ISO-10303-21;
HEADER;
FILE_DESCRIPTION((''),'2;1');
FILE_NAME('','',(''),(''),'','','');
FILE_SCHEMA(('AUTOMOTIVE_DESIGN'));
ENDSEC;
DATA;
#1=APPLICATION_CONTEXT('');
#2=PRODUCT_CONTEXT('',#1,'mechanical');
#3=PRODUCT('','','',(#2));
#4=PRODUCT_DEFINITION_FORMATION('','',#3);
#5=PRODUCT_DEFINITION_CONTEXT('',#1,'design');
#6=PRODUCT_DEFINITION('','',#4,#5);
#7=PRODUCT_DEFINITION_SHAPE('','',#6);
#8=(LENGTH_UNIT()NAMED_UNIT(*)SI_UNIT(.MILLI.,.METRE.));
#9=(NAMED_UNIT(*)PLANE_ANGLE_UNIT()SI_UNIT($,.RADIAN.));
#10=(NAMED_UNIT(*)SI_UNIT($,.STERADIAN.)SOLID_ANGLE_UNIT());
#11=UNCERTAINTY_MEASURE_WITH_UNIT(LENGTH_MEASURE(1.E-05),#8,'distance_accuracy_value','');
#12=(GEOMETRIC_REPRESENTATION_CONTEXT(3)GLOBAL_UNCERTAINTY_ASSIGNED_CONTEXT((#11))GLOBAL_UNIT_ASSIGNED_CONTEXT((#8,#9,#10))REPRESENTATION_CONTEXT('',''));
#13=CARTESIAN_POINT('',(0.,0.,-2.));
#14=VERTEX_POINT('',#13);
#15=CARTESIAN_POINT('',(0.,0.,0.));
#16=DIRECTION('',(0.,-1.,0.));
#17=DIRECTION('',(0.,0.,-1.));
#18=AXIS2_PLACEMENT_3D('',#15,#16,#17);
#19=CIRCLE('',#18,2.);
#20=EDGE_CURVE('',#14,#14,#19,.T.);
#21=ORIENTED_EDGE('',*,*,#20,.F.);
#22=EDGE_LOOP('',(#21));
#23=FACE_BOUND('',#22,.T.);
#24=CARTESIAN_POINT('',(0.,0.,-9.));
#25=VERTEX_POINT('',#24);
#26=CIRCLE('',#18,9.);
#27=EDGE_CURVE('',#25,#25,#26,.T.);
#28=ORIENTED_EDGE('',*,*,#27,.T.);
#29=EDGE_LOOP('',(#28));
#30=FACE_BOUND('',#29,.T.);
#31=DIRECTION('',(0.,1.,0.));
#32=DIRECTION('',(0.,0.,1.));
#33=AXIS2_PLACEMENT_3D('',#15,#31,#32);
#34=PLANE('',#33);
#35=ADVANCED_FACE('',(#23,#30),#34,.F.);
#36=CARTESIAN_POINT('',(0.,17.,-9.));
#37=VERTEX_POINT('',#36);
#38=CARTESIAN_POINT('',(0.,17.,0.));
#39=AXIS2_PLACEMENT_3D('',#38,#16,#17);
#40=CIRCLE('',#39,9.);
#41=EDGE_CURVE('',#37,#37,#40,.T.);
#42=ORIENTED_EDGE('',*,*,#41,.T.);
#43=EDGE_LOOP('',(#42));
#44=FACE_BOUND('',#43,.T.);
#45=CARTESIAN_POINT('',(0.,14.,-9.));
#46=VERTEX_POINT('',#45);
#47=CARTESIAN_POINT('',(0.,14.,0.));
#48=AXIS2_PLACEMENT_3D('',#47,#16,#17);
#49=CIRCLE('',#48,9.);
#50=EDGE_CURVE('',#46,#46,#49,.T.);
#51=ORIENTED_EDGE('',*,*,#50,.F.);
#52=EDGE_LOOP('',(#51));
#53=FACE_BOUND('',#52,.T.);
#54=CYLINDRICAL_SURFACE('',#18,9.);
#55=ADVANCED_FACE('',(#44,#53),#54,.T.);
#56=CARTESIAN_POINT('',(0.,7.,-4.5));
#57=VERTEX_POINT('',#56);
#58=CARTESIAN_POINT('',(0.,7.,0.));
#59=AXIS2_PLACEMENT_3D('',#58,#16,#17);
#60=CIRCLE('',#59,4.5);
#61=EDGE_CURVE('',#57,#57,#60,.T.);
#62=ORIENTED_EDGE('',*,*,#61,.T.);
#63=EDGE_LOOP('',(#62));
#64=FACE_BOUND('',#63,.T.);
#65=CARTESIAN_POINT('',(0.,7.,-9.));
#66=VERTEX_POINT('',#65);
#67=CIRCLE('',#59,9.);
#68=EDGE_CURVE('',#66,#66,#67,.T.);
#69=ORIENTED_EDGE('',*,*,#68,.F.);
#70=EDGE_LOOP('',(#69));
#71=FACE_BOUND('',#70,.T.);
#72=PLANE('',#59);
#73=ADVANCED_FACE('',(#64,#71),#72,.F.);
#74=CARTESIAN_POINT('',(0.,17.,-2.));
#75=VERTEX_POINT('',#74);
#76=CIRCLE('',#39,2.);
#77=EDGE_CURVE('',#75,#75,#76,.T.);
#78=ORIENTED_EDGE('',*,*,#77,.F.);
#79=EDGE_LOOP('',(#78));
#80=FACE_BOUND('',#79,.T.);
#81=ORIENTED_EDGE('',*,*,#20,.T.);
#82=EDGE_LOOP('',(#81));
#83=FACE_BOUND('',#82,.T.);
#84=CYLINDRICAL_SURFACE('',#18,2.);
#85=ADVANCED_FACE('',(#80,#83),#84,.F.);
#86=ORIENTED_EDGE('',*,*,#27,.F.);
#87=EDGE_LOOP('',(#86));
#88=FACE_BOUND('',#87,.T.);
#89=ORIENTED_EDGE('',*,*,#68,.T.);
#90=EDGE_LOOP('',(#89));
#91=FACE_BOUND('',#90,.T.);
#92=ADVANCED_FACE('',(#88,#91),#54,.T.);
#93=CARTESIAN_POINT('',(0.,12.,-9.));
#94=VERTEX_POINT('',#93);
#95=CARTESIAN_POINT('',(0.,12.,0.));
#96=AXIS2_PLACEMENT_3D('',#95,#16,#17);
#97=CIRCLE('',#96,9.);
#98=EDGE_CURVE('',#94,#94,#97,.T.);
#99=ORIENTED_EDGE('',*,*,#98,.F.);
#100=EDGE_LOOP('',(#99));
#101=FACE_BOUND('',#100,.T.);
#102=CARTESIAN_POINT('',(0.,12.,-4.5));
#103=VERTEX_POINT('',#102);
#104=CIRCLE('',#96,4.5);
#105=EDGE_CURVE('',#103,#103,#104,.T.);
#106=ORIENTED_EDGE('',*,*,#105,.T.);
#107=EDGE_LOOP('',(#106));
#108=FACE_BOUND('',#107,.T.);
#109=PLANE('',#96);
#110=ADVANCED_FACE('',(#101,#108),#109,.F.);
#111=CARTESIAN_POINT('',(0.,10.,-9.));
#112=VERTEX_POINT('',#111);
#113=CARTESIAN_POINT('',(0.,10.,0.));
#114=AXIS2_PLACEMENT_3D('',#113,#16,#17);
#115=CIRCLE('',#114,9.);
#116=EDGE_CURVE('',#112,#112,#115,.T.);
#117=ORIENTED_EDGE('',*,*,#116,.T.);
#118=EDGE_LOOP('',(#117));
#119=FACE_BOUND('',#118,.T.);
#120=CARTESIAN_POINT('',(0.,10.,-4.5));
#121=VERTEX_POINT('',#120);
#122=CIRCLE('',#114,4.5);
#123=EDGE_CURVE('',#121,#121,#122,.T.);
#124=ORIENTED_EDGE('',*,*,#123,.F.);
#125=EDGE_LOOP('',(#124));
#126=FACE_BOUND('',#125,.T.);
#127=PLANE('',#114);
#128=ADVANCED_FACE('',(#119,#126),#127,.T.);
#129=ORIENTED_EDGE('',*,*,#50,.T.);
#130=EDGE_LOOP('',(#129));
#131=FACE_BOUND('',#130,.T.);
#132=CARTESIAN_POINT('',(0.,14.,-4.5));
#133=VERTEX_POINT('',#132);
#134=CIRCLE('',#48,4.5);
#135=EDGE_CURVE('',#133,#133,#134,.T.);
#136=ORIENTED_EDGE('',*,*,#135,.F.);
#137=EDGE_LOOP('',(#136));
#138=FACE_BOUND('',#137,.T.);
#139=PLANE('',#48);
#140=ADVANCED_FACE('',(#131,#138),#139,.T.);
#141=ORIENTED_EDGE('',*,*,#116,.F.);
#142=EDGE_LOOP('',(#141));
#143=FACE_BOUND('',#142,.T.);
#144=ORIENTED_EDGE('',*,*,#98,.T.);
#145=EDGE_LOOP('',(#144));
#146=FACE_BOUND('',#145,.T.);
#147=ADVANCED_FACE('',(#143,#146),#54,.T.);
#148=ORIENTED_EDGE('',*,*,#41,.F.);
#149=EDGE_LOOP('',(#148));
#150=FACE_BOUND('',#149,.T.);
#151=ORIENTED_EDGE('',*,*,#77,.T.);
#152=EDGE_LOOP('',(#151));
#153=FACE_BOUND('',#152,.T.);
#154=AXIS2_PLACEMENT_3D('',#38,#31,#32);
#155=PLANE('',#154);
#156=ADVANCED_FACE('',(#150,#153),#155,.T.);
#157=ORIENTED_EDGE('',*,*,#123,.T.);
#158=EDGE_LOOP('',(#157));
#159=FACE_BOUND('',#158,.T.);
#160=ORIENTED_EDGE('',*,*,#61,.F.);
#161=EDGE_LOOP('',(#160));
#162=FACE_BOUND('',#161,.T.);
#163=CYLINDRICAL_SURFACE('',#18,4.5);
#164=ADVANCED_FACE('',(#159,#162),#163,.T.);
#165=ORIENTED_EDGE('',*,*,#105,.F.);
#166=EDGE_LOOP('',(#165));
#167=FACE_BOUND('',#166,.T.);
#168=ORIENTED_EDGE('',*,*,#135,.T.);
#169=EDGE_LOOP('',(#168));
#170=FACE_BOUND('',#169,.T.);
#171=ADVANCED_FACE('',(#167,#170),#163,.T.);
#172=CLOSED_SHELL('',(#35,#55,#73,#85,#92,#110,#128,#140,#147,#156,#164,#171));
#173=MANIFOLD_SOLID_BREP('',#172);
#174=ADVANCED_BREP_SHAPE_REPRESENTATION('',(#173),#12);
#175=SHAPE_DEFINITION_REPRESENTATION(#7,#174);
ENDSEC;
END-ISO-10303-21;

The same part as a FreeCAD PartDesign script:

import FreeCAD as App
import Part
import Sketcher

V = App.Vector
Q = App.Units.Quantity

doc = App.newDocument("Part")
body = doc.addObject("PartDesign::Body", "Body")

sketch1 = body.newObject("Sketcher::SketchObject", "Sketch")
sketch1.AttachmentSupport = (doc.getObject("XY_Plane"), [""])
sketch1.MapMode = "FlatFace"
sketch1.addGeometry([
    Part.LineSegment(V(2, 0, 0), V(9, 0, 0)),
    Part.LineSegment(V(9, 0, 0), V(9, 7, 0)),
    Part.LineSegment(V(9, 7, 0), V(4.5, 7, 0)),
    Part.LineSegment(V(4.5, 7, 0), V(4.5, 10, 0)),
    Part.LineSegment(V(4.5, 10, 0), V(9, 10, 0)),
    Part.LineSegment(V(9, 10, 0), V(9, 12, 0)),
    Part.LineSegment(V(9, 12, 0), V(4.5, 12, 0)),
    Part.LineSegment(V(4.5, 12, 0), V(4.5, 14, 0)),
    Part.LineSegment(V(4.5, 14, 0), V(9, 14, 0)),
    Part.LineSegment(V(9, 14, 0), V(9, 17, 0)),
    Part.LineSegment(V(9, 17, 0), V(2, 17, 0)),
    Part.LineSegment(V(2, 17, 0), V(2, 0, 0)),
], False)
sketch1.addConstraint([
    Sketcher.Constraint("Coincident", 0, 2, 1, 1),
    Sketcher.Constraint("Coincident", 1, 2, 2, 1),
    Sketcher.Constraint("Coincident", 2, 2, 3, 1),
    Sketcher.Constraint("Coincident", 3, 2, 4, 1),
    Sketcher.Constraint("Coincident", 4, 2, 5, 1),
    Sketcher.Constraint("Coincident", 5, 2, 6, 1),
    Sketcher.Constraint("Coincident", 6, 2, 7, 1),
    Sketcher.Constraint("Coincident", 7, 2, 8, 1),
    Sketcher.Constraint("Coincident", 8, 2, 9, 1),
    Sketcher.Constraint("Coincident", 9, 2, 10, 1),
    Sketcher.Constraint("Coincident", 10, 2, 11, 1),
    Sketcher.Constraint("Coincident", 11, 2, 0, 1),
    Sketcher.Constraint("Horizontal", 0),
    Sketcher.Constraint("Vertical", 1),
    Sketcher.Constraint("Horizontal", 2),
    Sketcher.Constraint("Vertical", 3),
    Sketcher.Constraint("Horizontal", 4),
    Sketcher.Constraint("Vertical", 5),
    Sketcher.Constraint("Horizontal", 6),
    Sketcher.Constraint("Vertical", 7),
    Sketcher.Constraint("Horizontal", 8),
    Sketcher.Constraint("Vertical", 9),
    Sketcher.Constraint("Horizontal", 10),
    Sketcher.Constraint("Vertical", 11),
    Sketcher.Constraint("PointOnObject", 0, 2, -1),
    Sketcher.Constraint("Vertical", 1, 2, 4, 2),
    Sketcher.Constraint("Vertical", 3, 2, 6, 2),
    Sketcher.Constraint("Vertical", 5, 2, 8, 2),
    Sketcher.Constraint("Equal", 10, 1),
    Sketcher.Constraint("Equal", 5, 7),
    Sketcher.Constraint("Equal", 3, 9),
    Sketcher.Constraint("DistanceX", 0, 1, 0, 2, Q("7 mm")),
    Sketcher.Constraint("DistanceY", 3, 1, 3, 2, Q("3 mm")),
    Sketcher.Constraint("DistanceY", 5, 1, 5, 2, Q("2 mm")),
    Sketcher.Constraint("DistanceX", 2, 2, 2, 1, Q("4.5 mm")),
    Sketcher.Constraint("DistanceX", -1, 1, 0, 2, Q("9 mm")),
])
revolution = body.newObject("PartDesign::Revolution", "Revolution")
revolution.Profile = sketch1
revolution.ReferenceAxis = (sketch1, ["V_Axis"])
revolution.Angle = 360

doc.recompute()
